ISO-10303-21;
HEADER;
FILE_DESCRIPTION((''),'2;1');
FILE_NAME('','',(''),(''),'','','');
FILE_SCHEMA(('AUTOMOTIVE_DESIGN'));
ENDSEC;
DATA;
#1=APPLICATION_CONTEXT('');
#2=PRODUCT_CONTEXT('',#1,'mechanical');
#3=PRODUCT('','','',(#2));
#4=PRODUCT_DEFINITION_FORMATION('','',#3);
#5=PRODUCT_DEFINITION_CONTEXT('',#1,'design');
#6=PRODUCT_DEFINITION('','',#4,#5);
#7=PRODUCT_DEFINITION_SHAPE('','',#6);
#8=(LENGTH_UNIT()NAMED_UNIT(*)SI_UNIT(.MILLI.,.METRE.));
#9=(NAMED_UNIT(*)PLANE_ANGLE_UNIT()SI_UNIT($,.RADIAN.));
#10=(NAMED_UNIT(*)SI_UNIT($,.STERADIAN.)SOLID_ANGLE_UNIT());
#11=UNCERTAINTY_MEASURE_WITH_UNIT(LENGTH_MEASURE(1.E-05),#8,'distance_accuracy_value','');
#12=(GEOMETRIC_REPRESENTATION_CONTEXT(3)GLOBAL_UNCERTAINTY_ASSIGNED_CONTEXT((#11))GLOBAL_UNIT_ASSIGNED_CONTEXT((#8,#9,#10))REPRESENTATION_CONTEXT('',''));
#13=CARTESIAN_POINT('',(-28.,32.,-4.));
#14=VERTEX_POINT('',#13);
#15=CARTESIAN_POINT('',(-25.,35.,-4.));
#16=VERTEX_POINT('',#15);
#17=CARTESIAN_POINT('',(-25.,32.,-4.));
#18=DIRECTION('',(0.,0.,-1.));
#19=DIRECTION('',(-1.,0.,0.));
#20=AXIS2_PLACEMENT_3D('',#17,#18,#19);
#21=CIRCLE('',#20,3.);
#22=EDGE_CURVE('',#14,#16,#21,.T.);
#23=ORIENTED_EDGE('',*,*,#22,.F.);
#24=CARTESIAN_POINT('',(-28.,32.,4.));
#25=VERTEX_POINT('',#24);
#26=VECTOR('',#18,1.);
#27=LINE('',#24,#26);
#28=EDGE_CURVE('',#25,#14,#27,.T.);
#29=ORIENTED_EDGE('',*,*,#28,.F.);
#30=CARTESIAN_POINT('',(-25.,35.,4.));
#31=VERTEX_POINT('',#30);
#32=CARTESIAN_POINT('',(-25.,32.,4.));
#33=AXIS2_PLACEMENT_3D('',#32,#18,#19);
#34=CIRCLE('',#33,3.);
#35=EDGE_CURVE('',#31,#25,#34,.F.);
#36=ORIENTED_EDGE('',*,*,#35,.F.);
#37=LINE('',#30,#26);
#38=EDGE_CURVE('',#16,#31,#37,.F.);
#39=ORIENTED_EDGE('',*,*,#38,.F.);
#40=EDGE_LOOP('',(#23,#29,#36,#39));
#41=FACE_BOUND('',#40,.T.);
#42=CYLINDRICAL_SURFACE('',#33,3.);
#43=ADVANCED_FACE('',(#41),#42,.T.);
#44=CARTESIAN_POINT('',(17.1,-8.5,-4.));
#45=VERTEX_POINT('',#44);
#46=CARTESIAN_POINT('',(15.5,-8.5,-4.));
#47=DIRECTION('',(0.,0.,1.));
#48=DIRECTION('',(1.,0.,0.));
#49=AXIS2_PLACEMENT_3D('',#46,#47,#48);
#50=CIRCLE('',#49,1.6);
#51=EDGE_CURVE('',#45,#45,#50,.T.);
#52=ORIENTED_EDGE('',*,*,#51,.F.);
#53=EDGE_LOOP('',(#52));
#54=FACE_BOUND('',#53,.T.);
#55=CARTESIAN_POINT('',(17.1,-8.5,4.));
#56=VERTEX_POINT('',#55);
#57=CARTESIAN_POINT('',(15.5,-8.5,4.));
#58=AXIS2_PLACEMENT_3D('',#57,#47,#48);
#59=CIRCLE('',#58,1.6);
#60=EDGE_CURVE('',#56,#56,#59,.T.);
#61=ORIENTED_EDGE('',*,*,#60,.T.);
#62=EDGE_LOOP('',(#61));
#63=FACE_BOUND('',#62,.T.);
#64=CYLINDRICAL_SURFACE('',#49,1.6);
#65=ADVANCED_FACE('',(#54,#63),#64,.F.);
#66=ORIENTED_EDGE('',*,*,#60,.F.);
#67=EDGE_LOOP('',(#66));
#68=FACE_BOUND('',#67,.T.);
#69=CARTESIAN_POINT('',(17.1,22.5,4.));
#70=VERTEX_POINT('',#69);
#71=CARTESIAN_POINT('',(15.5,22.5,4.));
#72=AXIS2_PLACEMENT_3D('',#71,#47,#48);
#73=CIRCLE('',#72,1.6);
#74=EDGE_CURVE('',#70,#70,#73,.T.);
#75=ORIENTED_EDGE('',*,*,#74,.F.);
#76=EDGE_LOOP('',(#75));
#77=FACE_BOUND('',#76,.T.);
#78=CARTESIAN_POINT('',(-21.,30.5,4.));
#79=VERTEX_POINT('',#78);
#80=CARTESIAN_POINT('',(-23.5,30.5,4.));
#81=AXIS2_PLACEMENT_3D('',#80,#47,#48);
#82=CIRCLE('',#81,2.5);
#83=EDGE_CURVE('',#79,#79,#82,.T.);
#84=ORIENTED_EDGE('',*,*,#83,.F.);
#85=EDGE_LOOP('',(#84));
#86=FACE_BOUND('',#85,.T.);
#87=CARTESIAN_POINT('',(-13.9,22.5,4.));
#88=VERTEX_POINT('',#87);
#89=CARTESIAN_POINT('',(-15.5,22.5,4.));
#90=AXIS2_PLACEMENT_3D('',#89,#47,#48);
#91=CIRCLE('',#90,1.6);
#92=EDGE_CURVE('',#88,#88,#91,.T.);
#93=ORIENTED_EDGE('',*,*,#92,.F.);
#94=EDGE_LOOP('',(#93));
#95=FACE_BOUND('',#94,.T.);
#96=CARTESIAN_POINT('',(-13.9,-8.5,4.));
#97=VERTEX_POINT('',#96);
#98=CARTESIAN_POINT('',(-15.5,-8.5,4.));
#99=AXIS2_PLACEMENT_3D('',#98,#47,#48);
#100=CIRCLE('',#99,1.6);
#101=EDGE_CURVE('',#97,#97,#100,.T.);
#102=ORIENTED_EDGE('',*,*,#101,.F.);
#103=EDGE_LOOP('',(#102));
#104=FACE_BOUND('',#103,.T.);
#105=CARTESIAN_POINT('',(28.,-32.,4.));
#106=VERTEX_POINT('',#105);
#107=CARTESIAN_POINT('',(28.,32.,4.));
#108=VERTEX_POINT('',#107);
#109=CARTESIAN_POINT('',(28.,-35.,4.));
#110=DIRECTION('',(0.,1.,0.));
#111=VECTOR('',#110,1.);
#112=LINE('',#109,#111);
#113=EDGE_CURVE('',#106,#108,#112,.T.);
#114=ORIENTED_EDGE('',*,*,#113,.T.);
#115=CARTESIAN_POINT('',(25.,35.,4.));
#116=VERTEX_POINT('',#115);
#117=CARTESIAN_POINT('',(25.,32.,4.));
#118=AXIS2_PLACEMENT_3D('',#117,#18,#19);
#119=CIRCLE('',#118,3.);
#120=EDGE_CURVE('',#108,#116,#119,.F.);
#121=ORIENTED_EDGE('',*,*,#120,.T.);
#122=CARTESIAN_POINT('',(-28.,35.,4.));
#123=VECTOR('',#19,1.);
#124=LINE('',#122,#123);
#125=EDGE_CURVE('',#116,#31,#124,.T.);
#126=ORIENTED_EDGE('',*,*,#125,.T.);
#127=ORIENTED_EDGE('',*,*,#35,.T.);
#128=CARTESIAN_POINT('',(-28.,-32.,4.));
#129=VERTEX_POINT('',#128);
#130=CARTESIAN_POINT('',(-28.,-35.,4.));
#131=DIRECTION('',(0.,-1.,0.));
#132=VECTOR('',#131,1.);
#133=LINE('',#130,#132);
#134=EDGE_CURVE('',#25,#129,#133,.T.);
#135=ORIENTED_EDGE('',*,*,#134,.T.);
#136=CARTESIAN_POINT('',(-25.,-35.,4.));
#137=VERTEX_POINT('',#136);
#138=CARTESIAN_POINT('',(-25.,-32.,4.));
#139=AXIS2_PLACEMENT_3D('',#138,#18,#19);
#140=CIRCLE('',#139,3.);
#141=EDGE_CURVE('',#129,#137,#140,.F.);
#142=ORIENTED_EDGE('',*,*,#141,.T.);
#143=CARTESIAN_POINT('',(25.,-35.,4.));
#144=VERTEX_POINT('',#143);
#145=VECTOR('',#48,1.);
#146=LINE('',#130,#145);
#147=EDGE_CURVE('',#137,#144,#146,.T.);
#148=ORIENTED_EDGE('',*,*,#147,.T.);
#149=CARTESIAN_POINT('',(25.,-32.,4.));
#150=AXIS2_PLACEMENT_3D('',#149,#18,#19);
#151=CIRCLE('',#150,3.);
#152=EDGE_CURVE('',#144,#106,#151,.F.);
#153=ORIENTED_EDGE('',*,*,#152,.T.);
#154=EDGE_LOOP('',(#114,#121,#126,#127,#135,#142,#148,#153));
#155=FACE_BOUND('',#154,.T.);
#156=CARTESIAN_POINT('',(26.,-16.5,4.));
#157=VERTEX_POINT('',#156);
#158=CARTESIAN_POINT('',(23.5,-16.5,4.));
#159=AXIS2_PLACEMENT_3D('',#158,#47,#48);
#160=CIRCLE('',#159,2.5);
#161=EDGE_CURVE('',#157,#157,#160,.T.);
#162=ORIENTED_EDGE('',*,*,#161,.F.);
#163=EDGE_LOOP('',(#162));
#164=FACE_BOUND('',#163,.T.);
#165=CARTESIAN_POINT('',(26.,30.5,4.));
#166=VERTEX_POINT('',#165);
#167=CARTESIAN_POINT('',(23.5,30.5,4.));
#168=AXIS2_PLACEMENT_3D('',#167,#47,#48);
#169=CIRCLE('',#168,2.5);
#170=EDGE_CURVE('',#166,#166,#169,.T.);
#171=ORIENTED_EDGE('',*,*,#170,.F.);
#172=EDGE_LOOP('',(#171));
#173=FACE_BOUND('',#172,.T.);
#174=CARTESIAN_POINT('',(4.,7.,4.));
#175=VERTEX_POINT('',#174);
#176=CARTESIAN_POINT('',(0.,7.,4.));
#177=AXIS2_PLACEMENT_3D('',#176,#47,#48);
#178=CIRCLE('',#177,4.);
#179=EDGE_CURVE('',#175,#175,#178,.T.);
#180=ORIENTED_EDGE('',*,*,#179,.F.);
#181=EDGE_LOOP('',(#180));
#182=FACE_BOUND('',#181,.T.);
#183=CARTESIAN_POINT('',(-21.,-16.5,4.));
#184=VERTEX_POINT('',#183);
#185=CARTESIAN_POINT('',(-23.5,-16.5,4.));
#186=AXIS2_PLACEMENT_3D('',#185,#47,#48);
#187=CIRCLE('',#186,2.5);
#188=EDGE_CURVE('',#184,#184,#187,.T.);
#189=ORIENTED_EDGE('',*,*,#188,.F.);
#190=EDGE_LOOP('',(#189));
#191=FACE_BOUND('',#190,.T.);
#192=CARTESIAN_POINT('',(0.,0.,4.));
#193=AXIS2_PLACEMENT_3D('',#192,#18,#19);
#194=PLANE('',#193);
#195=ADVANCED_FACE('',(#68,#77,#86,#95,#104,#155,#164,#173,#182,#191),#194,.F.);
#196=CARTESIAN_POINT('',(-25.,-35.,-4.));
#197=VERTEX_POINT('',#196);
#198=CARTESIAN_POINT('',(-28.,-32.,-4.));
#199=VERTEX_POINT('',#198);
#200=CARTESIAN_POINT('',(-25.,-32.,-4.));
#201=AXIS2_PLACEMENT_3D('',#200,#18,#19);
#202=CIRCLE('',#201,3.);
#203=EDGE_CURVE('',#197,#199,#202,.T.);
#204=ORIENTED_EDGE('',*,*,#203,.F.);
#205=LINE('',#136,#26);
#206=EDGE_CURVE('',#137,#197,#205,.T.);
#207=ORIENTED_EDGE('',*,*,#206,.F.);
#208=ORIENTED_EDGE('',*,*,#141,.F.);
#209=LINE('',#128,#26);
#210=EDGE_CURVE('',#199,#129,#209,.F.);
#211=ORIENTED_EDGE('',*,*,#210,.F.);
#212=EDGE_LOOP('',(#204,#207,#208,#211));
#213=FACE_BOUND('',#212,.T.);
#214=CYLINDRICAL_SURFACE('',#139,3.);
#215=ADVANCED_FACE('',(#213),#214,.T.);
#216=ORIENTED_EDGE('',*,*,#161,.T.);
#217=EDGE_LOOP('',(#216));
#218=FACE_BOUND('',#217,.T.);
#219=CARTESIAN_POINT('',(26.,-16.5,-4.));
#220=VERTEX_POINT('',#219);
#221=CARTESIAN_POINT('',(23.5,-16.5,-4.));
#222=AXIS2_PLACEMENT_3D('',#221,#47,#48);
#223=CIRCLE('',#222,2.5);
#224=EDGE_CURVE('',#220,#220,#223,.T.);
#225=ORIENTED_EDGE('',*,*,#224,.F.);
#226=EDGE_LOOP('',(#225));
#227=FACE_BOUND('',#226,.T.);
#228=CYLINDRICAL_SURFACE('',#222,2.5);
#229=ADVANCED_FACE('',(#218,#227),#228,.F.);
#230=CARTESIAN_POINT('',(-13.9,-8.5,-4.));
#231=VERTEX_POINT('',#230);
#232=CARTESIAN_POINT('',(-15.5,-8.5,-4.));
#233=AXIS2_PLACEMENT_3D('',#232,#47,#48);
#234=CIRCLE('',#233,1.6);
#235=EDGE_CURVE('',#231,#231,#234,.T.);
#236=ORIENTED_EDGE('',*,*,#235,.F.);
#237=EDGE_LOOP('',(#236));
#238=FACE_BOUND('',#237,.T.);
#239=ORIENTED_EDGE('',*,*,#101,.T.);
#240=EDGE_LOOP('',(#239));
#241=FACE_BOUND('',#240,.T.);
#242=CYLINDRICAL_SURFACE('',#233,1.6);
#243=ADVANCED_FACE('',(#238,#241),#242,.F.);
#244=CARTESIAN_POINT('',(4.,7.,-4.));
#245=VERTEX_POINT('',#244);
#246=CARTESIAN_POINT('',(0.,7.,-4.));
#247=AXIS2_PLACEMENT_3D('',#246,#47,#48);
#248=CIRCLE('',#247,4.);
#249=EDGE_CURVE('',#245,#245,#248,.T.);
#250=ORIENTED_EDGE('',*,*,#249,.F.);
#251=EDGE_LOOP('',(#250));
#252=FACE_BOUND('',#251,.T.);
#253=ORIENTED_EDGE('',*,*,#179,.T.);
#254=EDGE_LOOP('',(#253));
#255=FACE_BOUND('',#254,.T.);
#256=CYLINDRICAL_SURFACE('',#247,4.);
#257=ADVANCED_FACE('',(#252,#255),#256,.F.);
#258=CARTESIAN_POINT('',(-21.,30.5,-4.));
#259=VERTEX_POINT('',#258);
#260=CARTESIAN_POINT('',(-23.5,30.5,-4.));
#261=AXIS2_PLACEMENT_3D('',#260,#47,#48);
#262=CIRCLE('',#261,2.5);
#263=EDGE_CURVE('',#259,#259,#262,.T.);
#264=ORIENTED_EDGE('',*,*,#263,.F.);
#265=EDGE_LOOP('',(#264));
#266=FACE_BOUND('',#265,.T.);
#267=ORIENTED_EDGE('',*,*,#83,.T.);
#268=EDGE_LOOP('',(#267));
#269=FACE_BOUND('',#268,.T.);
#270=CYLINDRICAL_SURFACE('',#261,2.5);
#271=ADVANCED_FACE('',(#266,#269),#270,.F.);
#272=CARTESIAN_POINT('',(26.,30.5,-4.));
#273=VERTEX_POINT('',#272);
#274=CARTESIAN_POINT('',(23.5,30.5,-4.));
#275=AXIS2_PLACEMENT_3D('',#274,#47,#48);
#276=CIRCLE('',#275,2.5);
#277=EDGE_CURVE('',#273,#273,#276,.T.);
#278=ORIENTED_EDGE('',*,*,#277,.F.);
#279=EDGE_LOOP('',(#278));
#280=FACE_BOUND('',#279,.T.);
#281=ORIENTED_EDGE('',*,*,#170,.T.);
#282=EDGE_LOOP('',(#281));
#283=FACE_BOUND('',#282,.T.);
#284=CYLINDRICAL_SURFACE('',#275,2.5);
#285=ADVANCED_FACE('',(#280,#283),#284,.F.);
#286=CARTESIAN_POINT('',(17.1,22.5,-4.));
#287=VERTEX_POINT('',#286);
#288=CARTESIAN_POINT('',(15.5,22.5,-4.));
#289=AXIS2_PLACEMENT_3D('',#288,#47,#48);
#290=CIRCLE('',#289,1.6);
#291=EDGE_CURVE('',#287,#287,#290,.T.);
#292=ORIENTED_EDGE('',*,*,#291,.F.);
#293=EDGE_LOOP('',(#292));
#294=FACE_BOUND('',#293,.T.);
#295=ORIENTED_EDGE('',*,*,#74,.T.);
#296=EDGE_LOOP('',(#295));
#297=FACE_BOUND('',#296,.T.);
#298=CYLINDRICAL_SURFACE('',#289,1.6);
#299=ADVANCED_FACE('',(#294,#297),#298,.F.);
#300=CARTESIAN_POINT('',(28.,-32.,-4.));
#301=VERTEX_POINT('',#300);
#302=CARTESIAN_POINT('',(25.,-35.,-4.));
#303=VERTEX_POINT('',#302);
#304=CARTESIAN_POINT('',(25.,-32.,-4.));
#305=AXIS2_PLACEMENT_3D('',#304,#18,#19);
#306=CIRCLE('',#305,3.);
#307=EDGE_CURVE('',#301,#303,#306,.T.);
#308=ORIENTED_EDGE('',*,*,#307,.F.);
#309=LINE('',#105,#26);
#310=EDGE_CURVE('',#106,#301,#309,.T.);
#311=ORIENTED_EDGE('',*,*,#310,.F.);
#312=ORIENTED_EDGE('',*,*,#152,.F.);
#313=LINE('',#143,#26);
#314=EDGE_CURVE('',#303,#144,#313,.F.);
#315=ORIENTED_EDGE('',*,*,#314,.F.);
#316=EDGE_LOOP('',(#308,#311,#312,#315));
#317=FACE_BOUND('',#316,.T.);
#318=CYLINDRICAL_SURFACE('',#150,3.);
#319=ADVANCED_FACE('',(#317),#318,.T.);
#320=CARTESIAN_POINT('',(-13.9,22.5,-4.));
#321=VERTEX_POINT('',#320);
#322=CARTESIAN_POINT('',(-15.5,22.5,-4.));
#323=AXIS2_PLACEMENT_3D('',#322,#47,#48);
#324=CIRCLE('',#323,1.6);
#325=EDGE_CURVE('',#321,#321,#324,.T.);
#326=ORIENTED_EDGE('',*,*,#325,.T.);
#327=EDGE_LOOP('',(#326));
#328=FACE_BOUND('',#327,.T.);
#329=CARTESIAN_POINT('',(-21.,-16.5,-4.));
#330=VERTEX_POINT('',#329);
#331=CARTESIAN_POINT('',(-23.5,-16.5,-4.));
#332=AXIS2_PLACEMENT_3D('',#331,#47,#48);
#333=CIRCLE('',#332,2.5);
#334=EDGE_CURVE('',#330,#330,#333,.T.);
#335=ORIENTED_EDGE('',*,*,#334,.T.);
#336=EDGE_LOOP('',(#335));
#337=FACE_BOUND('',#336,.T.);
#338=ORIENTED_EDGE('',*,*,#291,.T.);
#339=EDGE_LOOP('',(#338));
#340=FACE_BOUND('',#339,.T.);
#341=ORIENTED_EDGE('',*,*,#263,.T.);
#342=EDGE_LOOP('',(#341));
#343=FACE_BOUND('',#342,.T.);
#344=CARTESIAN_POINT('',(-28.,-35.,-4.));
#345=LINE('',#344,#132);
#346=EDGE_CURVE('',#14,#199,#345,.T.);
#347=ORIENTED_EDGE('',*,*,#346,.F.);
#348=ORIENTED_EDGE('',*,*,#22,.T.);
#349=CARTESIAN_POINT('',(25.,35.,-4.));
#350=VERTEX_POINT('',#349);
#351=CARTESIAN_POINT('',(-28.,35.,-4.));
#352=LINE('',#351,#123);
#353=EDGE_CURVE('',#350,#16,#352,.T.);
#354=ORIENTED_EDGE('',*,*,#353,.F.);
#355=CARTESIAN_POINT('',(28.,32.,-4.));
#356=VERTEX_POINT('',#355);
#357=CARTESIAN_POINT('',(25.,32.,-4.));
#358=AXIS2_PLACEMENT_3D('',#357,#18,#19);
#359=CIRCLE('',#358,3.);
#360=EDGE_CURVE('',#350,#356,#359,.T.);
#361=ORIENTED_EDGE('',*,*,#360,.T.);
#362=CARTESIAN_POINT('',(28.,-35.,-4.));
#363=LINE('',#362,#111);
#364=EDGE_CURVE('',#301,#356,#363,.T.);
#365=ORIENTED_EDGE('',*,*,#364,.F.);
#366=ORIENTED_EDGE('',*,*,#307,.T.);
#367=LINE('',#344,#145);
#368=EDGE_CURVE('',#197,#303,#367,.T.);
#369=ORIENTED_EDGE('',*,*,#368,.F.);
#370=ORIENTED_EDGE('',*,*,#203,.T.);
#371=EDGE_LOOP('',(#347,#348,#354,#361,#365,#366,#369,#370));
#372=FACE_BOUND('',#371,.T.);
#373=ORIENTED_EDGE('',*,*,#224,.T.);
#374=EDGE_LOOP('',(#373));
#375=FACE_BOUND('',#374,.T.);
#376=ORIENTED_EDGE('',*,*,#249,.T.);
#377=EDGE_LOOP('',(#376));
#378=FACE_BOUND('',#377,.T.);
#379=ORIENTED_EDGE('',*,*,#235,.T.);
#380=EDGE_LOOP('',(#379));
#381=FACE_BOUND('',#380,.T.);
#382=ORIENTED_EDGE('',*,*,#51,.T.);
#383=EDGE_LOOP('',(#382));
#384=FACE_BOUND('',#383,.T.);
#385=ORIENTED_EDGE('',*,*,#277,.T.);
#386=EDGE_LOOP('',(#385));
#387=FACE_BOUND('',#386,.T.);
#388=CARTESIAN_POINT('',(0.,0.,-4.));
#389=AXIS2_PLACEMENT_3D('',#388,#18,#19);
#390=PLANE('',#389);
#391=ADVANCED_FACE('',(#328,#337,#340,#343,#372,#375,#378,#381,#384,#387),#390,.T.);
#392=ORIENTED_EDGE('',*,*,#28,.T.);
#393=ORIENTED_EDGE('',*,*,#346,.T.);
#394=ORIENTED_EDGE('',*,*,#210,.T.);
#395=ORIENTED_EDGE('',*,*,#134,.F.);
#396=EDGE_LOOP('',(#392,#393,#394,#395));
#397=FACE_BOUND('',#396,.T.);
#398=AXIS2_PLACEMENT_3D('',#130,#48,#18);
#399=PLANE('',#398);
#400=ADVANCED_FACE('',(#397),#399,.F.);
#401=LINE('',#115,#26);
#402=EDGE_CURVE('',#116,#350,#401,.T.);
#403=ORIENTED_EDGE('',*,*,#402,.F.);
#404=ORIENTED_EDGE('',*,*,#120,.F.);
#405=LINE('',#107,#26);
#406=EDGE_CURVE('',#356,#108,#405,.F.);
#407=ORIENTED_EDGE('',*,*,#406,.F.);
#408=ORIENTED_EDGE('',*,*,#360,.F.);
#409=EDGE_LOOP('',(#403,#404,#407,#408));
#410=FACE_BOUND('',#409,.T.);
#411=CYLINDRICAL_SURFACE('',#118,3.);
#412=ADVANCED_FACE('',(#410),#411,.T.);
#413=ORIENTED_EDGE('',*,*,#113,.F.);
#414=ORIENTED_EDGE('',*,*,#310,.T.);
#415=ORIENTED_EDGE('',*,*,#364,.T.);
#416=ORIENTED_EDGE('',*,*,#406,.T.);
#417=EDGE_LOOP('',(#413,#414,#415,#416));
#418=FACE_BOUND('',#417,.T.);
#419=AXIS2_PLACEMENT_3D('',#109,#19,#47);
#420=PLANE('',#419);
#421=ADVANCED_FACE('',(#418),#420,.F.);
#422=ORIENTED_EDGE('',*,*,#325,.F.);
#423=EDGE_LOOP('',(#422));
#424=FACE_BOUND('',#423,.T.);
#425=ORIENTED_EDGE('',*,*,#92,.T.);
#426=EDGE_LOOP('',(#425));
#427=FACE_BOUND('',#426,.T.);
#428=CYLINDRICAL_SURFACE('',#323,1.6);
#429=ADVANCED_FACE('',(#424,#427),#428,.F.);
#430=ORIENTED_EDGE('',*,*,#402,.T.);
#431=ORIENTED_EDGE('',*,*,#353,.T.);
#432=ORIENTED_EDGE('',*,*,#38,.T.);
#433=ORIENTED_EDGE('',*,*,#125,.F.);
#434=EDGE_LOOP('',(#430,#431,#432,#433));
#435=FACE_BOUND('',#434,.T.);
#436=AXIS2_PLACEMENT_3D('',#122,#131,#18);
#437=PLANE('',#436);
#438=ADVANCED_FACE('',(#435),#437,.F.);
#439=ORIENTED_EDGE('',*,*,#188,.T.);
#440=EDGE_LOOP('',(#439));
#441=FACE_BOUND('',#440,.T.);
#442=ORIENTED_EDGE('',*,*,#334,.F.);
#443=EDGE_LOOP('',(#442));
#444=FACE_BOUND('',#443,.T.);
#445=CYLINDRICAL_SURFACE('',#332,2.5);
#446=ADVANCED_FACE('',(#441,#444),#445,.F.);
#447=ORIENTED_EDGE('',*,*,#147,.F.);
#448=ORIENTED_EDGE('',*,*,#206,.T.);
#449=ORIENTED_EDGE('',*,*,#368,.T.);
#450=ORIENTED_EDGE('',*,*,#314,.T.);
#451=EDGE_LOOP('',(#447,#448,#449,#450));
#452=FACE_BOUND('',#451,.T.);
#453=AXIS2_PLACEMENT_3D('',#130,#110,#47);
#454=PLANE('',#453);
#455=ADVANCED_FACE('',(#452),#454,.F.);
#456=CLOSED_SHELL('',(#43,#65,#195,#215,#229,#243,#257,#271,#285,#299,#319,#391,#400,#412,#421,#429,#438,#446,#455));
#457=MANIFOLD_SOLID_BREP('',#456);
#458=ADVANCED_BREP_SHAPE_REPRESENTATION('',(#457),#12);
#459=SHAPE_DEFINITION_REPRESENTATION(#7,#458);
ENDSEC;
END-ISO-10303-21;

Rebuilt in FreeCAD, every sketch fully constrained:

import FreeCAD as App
import Part
import Sketcher
from FreeCAD import Vector


def edges_at(feature, points):
    """Names of the edges that pass closest to the given points."""
    edges = feature.Shape.Edges
    near = lambda p: min(range(len(edges)), key=lambda i: edges[i].distToShape(Part.Vertex(*p))[0])
    return sorted({f"Edge{near(p) + 1}" for p in points})

doc = App.newDocument("Part")
body = doc.addObject("PartDesign::Body", "Body")

sketch1 = body.newObject("Sketcher::SketchObject", "Sketch")
sketch1.AttachmentSupport = (doc.getObject("XY_Plane"), [""])
sketch1.MapMode = "FlatFace"
sketch1.addGeometry(Part.LineSegment(Vector(-28, 35, 0), Vector(-28, -35, 0)), False)
sketch1.addGeometry(Part.LineSegment(Vector(-28, -35, 0), Vector(28, -35, 0)), False)
sketch1.addGeometry(Part.LineSegment(Vector(28, -35, 0), Vector(28, 35, 0)), False)
sketch1.addGeometry(Part.LineSegment(Vector(28, 35, 0), Vector(-28, 35, 0)), False)
sketch1.addConstraint(Sketcher.Constraint("Coincident", 0, 2, 1, 1))
sketch1.addConstraint(Sketcher.Constraint("Coincident", 1, 2, 2, 1))
sketch1.addConstraint(Sketcher.Constraint("Coincident", 2, 2, 3, 1))
sketch1.addConstraint(Sketcher.Constraint("Coincident", 3, 2, 0, 1))
sketch1.addConstraint(Sketcher.Constraint("Vertical", 0))
sketch1.addConstraint(Sketcher.Constraint("Horizontal", 1))
sketch1.addConstraint(Sketcher.Constraint("Vertical", 2))
sketch1.addConstraint(Sketcher.Constraint("Horizontal", 3))
sketch1.addConstraint(Sketcher.Constraint("Symmetric", 0, 2, 2, 2, -1, 1))
sketch1.addConstraint(Sketcher.Constraint("DistanceX", 1, 1, 1, 2, 56.0))
sketch1.addConstraint(Sketcher.Constraint("DistanceY", 0, 2, 0, 1, 70.0))
pad1 = body.newObject("PartDesign::Pad", "Pad")
pad1.Profile = sketch1
pad1.Length = 8
pad1.Midplane = True

sketch2 = body.newObject("Sketcher::SketchObject", "Sketch001")
sketch2.AttachmentSupport = (doc.getObject("XY_Plane"), [""])
sketch2.MapMode = "FlatFace"
sketch2.AttachmentOffset = App.Placement(Vector(0, 0, 4), App.Rotation())
sketch2.addGeometry(Part.Circle(Vector(-23.5, 30.5, 0), Vector(0, 0, 1), 2.5), False)
sketch2.addGeometry(Part.Circle(Vector(23.5, 30.5, 0), Vector(0, 0, 1), 2.5), False)
sketch2.addGeometry(Part.Circle(Vector(23.5, -16.5, 0), Vector(0, 0, 1), 2.5), False)
sketch2.addGeometry(Part.Circle(Vector(-23.5, -16.5, 0), Vector(0, 0, 1), 2.5), False)
sketch2.addGeometry(Part.Circle(Vector(0, 7, 0), Vector(0, 0, 1), 4), False)
sketch2.addGeometry(Part.Circle(Vector(-15.5, 22.5, 0), Vector(0, 0, 1), 1.6), False)
sketch2.addGeometry(Part.Circle(Vector(15.5, 22.5, 0), Vector(0, 0, 1), 1.6), False)
sketch2.addGeometry(Part.Circle(Vector(15.5, -8.5, 0), Vector(0, 0, 1), 1.6), False)
sketch2.addGeometry(Part.Circle(Vector(-15.5, -8.5, 0), Vector(0, 0, 1), 1.6), False)
sketch2.addConstraint(Sketcher.Constraint("Equal", 0, 1))
sketch2.addConstraint(Sketcher.Constraint("Equal", 1, 2))
sketch2.addConstraint(Sketcher.Constraint("Equal", 2, 3))
sketch2.addConstraint(Sketcher.Constraint("Equal", 5, 6))
sketch2.addConstraint(Sketcher.Constraint("Equal", 6, 7))
sketch2.addConstraint(Sketcher.Constraint("Equal", 7, 8))
sketch2.addConstraint(Sketcher.Constraint("Symmetric", 0, 3, 1, 3, -2))
sketch2.addConstraint(Sketcher.Constraint("Symmetric", 2, 3, 3, 3, -2))
sketch2.addConstraint(Sketcher.Constraint("Symmetric", 5, 3, 6, 3, -2))
sketch2.addConstraint(Sketcher.Constraint("Symmetric", 7, 3, 8, 3, -2))
sketch2.addConstraint(Sketcher.Constraint("PointOnObject", 4, 3, -2))
sketch2.addConstraint(Sketcher.Constraint("Vertical", 1, 3, 2, 3))
sketch2.addConstraint(Sketcher.Constraint("Vertical", 6, 3, 7, 3))
sketch2.addConstraint(Sketcher.Constraint("Diameter", 0, 5.0))
sketch2.addConstraint(Sketcher.Constraint("Diameter", 4, 8.0))
sketch2.addConstraint(Sketcher.Constraint("Diameter", 5, 3.2))
sketch2.addConstraint(Sketcher.Constraint("DistanceY", -1, 1, 4, 3, 7.0))
sketch2.addConstraint(Sketcher.Constraint("DistanceX", 0, 3, 1, 3, 47.0))
sketch2.addConstraint(Sketcher.Constraint("DistanceY", 2, 3, 1, 3, 47.0))
sketch2.addConstraint(Sketcher.Constraint("DistanceX", 0, 3, 5, 3, 8.0))
sketch2.addConstraint(Sketcher.Constraint("DistanceY", 5, 3, 0, 3, 8.0))
sketch2.addConstraint(Sketcher.Constraint("DistanceY", 2, 3, 7, 3, 8.0))
sketch2.addConstraint(Sketcher.Constraint("DistanceY", -1, 1, 0, 3, 30.5))
pocket1 = body.newObject("PartDesign::Pocket", "Pocket")
pocket1.Profile = sketch2
pocket1.Type = "ThroughAll"
doc.recompute()

fillet = body.newObject("PartDesign::Fillet", "Fillet")
fillet.Base = (pocket1, edges_at(pocket1, [
    (28, -35, 0),
    (-28, -35, 0),
    (-28, 35, 0),
    (28, 35, 0),
]))
fillet.Radius = 3

doc.recompute()
